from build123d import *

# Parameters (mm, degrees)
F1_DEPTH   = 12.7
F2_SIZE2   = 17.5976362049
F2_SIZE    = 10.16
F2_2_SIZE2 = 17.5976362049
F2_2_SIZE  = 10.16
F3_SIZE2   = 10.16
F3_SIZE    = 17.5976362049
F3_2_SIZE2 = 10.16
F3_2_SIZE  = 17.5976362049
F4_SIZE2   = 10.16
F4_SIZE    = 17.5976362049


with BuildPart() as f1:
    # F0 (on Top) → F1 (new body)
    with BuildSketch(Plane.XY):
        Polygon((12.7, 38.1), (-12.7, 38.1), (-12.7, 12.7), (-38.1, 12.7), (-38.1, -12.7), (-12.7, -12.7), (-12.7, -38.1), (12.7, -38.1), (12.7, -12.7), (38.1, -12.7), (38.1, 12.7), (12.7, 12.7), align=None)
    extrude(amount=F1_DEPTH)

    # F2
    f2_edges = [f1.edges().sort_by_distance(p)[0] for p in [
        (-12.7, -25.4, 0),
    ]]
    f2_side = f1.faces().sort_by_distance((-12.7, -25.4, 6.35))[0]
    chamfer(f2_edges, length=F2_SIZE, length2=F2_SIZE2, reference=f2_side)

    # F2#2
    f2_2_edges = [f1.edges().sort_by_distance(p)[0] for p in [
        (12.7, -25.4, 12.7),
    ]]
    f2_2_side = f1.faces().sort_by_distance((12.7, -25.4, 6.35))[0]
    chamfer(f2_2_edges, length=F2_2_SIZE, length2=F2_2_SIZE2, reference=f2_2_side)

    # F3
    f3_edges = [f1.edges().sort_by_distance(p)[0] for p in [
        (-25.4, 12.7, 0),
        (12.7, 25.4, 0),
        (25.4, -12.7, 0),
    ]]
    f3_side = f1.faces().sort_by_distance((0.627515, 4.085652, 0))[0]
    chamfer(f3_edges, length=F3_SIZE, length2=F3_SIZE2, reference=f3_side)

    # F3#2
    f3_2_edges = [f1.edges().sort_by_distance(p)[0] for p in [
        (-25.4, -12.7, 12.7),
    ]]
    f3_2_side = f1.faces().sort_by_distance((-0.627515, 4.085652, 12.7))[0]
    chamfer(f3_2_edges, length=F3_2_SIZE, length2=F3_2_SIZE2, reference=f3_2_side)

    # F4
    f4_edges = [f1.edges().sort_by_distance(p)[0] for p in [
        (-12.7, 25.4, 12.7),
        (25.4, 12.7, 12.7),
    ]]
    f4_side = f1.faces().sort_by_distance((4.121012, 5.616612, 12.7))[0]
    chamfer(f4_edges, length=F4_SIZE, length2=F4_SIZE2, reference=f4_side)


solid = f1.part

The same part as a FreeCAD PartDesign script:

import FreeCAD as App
import Part
import Sketcher
from FreeCAD import Vector
Q = App.Units.Quantity


def edges_at(feature, points):
    """Names of the edges that pass closest to the given points."""
    edges = feature.Shape.Edges
    near = lambda p: min(range(len(edges)), key=lambda i: edges[i].distToShape(Part.Vertex(*p))[0])
    return sorted({f"Edge{near(p) + 1}" for p in points})


def add_polygon(sketch, points):
    """Adds a closed chain of lines whose ends are joined by coincident constraints."""
    first, n = sketch.GeometryCount, len(points)
    for a, b in zip(points, points[1:] + points[:1]):
        sketch.addGeometry(Part.LineSegment(App.Vector(*a, 0), App.Vector(*b, 0)), False)
    for i in range(n):
        sketch.addConstraint(Sketcher.Constraint("Coincident", first + i, 2, first + (i + 1) % n, 1))

doc = App.newDocument("Part")
body = doc.addObject("PartDesign::Body", "Body")

sketch1 = doc.addObject("Sketcher::SketchObject", "Sketch")
body.addObject(sketch1)
sketch1.AttachmentSupport = (doc.XY_Plane, [""])
sketch1.MapMode = "FlatFace"
add_polygon(sketch1, [(13, 38), (-13, 38), (-13, 13), (-38, 13), (-38, -13), (-13, -13), (-13, -38), (13, -38), (13, -13), (38, -13), (38, 13), (13, 13)])
sketch1.addConstraint([
    Sketcher.Constraint("Horizontal", 0),
    Sketcher.Constraint("Vertical", 1),
    Sketcher.Constraint("Horizontal", 2),
    Sketcher.Constraint("Vertical", 3),
    Sketcher.Constraint("Horizontal", 4),
    Sketcher.Constraint("Vertical", 5),
    Sketcher.Constraint("Horizontal", 6),
    Sketcher.Constraint("Vertical", 7),
    Sketcher.Constraint("Horizontal", 8),
    Sketcher.Constraint("Vertical", 9),
    Sketcher.Constraint("Horizontal", 10),
    Sketcher.Constraint("Vertical", 11),
    Sketcher.Constraint("Symmetric", 0, 2, 6, 2, -1, 1),
    Sketcher.Constraint("Symmetric", 2, 2, 8, 2, -1, 1),
    Sketcher.Constraint("Symmetric", 4, 2, 10, 2, -1, 1),
    Sketcher.Constraint("Symmetric", 4, 2, 7, 2, -2),
    Sketcher.Constraint("Equal", 0, 2),
    Sketcher.Constraint("Equal", 10, 1),
    Sketcher.Constraint("Equal", 1, 3),
    Sketcher.Constraint("DistanceX", 0, 2, 0, 1, Q("1 in")),
])
pad1 = doc.addObject("PartDesign::Pad", "Pad")
body.addObject(pad1)
pad1.Profile = sketch1
pad1.Length = Q("0.5 in")
doc.recompute()

chamfer = doc.addObject("PartDesign::Chamfer", "Chamfer")
body.addObject(chamfer)
chamfer.Base = (pad1, edges_at(pad1, [(-12.7, -25.4, 0)]))
chamfer.ChamferType = "Two distances"
chamfer.Size = Q("0.4 in")
chamfer.Size2 = 17.597636
doc.recompute()

chamfer2 = doc.addObject("PartDesign::Chamfer", "Chamfer001")
body.addObject(chamfer2)
chamfer2.Base = (chamfer, edges_at(chamfer, [(12.7, -25.4, 12.7)]))
chamfer2.ChamferType = "Two distances"
chamfer2.Size = Q("0.4 in")
chamfer2.Size2 = 17.597636
chamfer2.FlipDirection = True
doc.recompute()

chamfer3 = doc.addObject("PartDesign::Chamfer", "Chamfer002")
body.addObject(chamfer3)
chamfer3.Base = (chamfer2, edges_at(chamfer2, [(-25.4, 12.7, 0), (12.7, 25.4, 0), (25.4, -12.7, 0)]))
chamfer3.ChamferType = "Two distances"
chamfer3.Size = 17.597636
chamfer3.Size2 = Q("0.4 in")
chamfer3.FlipDirection = True
doc.recompute()

chamfer4 = doc.addObject("PartDesign::Chamfer", "Chamfer003")
body.addObject(chamfer4)
chamfer4.Base = (chamfer3, edges_at(chamfer3, [(-25.4, -12.7, 12.7)]))
chamfer4.ChamferType = "Two distances"
chamfer4.Size = 17.597636
chamfer4.Size2 = Q("0.4 in")
doc.recompute()

chamfer5 = doc.addObject("PartDesign::Chamfer", "Chamfer004")
body.addObject(chamfer5)
chamfer5.Base = (chamfer4, edges_at(chamfer4, [(-12.7, 25.4, 12.7), (25.4, 12.7, 12.7)]))
chamfer5.ChamferType = "Two distances"
chamfer5.Size = 17.597636
chamfer5.Size2 = Q("0.4 in")

doc.recompute()
